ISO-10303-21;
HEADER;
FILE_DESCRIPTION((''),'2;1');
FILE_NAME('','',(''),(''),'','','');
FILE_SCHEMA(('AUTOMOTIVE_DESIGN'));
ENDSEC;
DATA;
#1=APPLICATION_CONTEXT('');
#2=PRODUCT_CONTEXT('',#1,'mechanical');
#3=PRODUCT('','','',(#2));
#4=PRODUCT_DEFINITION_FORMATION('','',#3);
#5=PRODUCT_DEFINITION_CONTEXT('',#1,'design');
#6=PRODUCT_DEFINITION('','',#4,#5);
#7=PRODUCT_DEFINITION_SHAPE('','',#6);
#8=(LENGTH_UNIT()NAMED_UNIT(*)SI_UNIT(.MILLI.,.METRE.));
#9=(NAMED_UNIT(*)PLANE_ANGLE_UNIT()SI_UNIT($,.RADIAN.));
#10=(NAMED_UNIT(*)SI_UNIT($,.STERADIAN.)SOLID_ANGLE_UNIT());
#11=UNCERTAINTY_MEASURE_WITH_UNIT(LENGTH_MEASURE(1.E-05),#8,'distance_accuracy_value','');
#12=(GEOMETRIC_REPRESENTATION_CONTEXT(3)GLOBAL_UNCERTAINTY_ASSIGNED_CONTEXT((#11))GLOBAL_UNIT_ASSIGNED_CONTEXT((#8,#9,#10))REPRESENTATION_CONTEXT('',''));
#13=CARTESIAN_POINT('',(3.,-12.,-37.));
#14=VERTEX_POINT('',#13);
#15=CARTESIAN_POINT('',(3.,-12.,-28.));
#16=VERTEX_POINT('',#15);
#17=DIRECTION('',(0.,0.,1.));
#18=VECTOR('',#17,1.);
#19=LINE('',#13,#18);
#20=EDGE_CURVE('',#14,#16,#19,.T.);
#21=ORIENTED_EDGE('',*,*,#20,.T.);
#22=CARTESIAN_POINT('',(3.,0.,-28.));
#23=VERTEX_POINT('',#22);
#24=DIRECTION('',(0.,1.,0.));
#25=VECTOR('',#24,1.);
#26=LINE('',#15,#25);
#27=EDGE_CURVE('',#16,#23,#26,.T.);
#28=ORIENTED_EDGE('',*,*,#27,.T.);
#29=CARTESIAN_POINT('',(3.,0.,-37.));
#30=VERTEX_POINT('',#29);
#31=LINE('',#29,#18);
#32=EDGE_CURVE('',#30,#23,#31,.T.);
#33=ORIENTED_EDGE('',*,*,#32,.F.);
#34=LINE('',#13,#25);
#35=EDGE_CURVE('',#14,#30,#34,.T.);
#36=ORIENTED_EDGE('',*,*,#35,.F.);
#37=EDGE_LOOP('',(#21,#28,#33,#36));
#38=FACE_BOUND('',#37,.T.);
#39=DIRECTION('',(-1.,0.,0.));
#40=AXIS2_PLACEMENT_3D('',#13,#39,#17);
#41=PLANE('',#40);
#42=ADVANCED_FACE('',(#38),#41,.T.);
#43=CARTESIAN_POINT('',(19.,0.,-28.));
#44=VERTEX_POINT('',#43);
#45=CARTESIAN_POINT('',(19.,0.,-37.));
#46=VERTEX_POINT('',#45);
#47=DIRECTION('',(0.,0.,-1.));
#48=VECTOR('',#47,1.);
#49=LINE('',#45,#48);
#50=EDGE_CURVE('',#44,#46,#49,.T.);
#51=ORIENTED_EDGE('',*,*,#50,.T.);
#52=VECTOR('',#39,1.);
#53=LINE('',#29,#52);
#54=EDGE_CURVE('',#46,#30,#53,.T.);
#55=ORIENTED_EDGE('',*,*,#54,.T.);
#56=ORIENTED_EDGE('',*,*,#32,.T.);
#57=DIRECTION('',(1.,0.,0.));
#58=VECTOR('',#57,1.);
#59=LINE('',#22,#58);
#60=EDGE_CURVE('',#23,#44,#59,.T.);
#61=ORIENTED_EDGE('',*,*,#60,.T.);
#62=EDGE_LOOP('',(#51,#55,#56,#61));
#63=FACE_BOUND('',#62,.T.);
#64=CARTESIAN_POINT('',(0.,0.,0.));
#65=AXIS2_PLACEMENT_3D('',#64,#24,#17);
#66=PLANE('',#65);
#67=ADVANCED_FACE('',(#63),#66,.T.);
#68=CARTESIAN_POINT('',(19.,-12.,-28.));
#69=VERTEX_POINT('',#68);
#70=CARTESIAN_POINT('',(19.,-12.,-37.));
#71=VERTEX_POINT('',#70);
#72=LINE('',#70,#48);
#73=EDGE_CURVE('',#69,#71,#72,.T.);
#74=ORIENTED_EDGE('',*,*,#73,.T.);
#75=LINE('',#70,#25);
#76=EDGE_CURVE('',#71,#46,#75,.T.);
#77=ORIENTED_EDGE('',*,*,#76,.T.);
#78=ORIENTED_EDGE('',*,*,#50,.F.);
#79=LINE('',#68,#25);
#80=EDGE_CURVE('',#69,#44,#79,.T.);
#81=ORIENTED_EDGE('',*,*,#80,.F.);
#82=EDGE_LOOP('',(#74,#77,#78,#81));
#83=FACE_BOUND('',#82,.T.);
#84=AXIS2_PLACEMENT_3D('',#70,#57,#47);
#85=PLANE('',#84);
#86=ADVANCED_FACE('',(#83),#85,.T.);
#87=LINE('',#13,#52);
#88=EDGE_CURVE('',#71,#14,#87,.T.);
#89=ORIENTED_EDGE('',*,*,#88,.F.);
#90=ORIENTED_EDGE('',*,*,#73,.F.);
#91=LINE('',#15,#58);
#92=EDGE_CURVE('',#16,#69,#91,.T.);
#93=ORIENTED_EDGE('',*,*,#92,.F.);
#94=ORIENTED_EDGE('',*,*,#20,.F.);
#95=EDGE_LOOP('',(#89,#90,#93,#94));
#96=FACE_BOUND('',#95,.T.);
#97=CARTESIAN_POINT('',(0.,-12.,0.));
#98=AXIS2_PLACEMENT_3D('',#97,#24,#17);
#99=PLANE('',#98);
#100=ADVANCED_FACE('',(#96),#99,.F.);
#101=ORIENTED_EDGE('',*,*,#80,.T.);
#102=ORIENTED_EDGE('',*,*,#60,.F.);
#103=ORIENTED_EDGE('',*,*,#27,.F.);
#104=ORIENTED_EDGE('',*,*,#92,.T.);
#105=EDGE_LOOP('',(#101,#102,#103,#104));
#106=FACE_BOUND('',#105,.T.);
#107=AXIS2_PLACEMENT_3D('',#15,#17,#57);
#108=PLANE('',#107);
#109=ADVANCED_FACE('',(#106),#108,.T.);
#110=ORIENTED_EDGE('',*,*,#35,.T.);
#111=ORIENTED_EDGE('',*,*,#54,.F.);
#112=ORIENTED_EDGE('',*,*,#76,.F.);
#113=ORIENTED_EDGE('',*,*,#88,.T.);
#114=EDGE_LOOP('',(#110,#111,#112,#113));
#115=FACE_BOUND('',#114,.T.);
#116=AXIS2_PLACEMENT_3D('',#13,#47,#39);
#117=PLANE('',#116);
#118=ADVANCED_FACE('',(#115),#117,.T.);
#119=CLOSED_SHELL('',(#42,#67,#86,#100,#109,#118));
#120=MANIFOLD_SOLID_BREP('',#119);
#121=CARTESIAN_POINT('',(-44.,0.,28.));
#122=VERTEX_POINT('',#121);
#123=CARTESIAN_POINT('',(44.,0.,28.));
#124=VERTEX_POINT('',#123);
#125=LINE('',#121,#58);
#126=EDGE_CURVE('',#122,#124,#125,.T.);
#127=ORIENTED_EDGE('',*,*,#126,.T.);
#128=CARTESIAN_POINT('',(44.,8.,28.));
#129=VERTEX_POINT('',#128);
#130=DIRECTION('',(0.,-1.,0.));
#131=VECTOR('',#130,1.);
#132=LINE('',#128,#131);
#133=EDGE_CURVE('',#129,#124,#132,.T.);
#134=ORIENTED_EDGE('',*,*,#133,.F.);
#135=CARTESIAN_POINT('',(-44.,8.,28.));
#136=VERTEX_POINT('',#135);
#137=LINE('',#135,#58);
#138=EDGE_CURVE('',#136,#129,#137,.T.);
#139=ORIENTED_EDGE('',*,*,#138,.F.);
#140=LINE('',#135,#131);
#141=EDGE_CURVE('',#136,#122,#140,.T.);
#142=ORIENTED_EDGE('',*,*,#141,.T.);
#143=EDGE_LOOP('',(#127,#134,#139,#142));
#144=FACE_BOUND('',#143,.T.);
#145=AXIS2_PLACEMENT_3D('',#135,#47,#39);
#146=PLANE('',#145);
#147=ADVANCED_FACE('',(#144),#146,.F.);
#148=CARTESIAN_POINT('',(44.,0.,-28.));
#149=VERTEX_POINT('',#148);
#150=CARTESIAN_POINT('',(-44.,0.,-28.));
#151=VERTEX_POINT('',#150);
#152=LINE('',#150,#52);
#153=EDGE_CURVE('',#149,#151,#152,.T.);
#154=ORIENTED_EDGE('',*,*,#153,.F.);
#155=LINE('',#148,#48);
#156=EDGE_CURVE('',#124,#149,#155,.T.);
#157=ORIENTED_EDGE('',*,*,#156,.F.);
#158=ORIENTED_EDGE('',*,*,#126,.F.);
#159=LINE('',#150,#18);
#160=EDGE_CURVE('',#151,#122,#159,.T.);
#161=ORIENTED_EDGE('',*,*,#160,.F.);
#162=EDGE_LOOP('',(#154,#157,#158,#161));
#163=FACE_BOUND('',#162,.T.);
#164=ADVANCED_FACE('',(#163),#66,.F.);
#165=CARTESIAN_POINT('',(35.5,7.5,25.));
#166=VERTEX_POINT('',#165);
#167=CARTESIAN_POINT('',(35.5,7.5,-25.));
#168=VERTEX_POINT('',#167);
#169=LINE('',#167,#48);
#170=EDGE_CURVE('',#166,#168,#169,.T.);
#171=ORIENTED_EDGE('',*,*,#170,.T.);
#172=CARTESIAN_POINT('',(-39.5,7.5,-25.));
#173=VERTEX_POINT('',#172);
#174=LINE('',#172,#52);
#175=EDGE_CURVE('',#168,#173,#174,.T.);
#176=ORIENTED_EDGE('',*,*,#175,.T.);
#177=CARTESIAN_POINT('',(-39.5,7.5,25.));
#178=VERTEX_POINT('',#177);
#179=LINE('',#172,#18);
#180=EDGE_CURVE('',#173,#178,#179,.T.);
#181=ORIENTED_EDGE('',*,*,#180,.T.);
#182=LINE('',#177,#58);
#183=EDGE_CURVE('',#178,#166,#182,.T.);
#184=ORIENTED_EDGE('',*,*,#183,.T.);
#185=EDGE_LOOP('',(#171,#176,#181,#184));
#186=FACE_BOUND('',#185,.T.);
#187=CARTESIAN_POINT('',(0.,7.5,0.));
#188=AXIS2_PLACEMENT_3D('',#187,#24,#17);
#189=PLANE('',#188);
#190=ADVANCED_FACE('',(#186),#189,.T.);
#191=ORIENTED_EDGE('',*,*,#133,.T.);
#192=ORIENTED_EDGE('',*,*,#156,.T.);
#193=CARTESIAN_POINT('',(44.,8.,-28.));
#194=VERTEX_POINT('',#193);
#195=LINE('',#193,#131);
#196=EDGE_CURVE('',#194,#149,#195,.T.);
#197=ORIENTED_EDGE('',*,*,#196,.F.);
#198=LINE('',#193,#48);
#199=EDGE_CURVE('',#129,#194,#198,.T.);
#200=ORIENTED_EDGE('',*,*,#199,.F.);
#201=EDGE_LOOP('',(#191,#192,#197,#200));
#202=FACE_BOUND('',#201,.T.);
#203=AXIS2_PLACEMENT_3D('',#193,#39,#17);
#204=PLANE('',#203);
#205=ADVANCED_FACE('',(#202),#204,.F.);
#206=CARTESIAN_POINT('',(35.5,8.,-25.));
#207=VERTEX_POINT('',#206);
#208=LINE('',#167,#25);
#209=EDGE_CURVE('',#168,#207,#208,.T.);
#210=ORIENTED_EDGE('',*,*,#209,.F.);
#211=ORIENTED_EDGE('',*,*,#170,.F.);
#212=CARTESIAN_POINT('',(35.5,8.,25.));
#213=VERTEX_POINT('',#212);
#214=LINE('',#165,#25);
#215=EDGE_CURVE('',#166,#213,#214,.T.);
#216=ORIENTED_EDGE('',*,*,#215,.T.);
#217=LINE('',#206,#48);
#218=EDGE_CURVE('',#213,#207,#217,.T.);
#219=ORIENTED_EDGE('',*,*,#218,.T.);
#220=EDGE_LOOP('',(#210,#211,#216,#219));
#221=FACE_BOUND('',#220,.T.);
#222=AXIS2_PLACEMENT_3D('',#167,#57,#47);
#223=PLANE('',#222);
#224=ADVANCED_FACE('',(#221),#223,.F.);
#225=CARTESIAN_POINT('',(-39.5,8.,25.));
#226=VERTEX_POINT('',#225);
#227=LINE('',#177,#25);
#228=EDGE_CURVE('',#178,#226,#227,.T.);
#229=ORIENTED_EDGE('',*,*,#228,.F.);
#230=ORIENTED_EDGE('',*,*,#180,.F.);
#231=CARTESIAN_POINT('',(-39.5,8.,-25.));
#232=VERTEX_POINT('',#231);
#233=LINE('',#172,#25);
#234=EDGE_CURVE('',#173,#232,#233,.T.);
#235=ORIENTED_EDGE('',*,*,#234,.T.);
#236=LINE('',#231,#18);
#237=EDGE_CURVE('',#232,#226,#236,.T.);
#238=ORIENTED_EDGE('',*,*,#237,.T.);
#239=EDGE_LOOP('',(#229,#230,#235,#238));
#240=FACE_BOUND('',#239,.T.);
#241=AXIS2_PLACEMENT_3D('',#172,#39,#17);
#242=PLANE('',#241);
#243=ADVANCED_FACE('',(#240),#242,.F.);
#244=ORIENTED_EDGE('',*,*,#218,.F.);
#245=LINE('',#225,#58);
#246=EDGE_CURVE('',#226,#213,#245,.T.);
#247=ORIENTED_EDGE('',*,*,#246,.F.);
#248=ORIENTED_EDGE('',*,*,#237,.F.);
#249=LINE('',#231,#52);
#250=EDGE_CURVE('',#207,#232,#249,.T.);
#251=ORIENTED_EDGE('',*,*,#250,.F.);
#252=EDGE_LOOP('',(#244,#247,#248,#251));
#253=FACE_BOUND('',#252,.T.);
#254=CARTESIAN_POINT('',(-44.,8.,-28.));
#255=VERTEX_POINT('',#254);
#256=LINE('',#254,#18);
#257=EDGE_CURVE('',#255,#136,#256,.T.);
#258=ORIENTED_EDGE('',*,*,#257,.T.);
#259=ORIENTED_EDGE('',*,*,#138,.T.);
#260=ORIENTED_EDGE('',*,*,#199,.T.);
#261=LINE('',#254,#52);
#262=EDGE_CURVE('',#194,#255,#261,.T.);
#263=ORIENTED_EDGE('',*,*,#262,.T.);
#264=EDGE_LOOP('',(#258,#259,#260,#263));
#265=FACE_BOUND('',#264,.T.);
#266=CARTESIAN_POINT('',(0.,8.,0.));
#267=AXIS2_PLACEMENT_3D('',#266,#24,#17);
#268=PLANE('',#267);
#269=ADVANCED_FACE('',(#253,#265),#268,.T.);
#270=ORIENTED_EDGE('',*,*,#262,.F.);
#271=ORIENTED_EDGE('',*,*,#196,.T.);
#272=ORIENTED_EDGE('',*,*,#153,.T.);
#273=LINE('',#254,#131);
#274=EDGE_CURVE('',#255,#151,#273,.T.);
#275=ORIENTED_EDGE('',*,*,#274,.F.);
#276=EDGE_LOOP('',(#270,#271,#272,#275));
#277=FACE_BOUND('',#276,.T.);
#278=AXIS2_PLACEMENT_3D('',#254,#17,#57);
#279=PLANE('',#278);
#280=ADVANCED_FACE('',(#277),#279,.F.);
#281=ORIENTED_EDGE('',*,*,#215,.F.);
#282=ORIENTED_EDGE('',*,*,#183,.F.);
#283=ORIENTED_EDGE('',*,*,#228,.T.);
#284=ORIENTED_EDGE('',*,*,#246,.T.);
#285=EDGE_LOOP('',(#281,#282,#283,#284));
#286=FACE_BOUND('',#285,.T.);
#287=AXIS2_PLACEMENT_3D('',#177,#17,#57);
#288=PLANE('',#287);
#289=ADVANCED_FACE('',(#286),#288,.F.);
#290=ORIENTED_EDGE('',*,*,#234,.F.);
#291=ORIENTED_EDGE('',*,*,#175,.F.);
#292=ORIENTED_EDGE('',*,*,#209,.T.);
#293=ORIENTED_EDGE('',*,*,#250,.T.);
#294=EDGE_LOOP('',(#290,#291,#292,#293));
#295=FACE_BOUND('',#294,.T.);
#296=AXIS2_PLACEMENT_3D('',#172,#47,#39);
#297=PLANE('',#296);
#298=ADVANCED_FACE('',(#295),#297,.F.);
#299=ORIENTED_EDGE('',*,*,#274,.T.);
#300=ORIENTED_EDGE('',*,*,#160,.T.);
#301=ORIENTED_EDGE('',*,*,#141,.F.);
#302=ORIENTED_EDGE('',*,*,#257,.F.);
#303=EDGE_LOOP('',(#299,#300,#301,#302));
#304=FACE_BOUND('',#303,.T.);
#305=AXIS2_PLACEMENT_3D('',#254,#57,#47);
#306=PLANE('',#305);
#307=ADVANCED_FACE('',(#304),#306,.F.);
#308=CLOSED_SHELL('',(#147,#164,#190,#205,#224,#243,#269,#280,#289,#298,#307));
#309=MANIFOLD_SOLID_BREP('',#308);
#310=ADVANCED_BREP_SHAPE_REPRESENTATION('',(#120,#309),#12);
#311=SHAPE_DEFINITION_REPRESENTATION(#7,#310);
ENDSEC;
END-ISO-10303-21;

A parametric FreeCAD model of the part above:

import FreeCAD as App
import Part
import Sketcher


def add_polygon(sketch, points):
    """Adds a closed chain of lines whose ends are joined by coincident constraints."""
    first, n = sketch.GeometryCount, len(points)
    for a, b in zip(points, points[1:] + points[:1]):
        sketch.addGeometry(Part.LineSegment(App.Vector(*a, 0), App.Vector(*b, 0)), False)
    for i in range(n):
        sketch.addConstraint(Sketcher.Constraint("Coincident", first + i, 2, first + (i + 1) % n, 1))

doc = App.newDocument("Part")
body = doc.addObject("PartDesign::Body", "Body")

sketch1 = body.newObject("Sketcher::SketchObject", "Sketch")
sketch1.AttachmentSupport = (doc.getObject("XZ_Plane"), [""])
sketch1.MapMode = "FlatFace"
add_polygon(sketch1, [(-44, -28), (-44, 28), (44, 28), (44, -28)])
sketch1.addConstraint([
    Sketcher.Constraint("Vertical", 0),
    Sketcher.Constraint("Horizontal", 1),
    Sketcher.Constraint("Vertical", 2),
    Sketcher.Constraint("Horizontal", 3),
    Sketcher.Constraint("Symmetric", 0, 2, 2, 2, -1, 1),
    Sketcher.Constraint("DistanceX", 1, 1, 1, 2, 88.0),
    Sketcher.Constraint("DistanceY", 0, 1, 0, 2, 56.0),
])
pad1 = body.newObject("PartDesign::Pad", "Pad")
pad1.Profile = sketch1
pad1.Length = 8
pad1.Reversed = True

sketch2 = body.newObject("Sketcher::SketchObject", "Sketch001")
sketch2.AttachmentSupport = (doc.getObject("XZ_Plane"), [""])
sketch2.MapMode = "FlatFace"
sketch2.AttachmentOffset = App.Placement(App.Vector(0, 0, -8), App.Rotation())
add_polygon(sketch2, [(-40, -25), (-40, 25), (36, 25), (36, -25)])
sketch2.addConstraint([
    Sketcher.Constraint("Vertical", 0),
    Sketcher.Constraint("Horizontal", 1),
    Sketcher.Constraint("Vertical", 2),
    Sketcher.Constraint("Horizontal", 3),
    Sketcher.Constraint("DistanceX", 1, 1, 1, 2, 75.0),
    Sketcher.Constraint("DistanceY", 0, 1, 0, 2, 50.0),
    Sketcher.Constraint("DistanceY", -1, 1, 0, 2, 25.0),
    Sketcher.Constraint("DistanceX", 0, 2, -1, 1, 39.5),
])
pocket1 = body.newObject("PartDesign::Pocket", "Pocket")
pocket1.Profile = sketch2
pocket1.Length = 0.5
pocket1.Reversed = True
body2 = doc.addObject("PartDesign::Body", "Body001")

sketch3 = body2.newObject("Sketcher::SketchObject", "Sketch002")
sketch3.AttachmentSupport = (doc.getObject("XZ_Plane001"), [""])
sketch3.MapMode = "FlatFace"
add_polygon(sketch3, [(3, -37), (3, -28), (19, -28), (19, -37)])
sketch3.addConstraint([
    Sketcher.Constraint("Vertical", 0),
    Sketcher.Constraint("Horizontal", 1),
    Sketcher.Constraint("Vertical", 2),
    Sketcher.Constraint("Horizontal", 3),
    Sketcher.Constraint("DistanceX", 1, 1, 1, 2, 16.0),
    Sketcher.Constraint("DistanceY", 0, 1, 0, 2, 9.0),
    Sketcher.Constraint("DistanceX", -1, 1, 0, 2, 3.0),
    Sketcher.Constraint("DistanceY", 0, 2, -1, 1, 28.0),
])
pad2 = body2.newObject("PartDesign::Pad", "Pad001")
pad2.Profile = sketch3
pad2.Length = 12

doc.recompute()
